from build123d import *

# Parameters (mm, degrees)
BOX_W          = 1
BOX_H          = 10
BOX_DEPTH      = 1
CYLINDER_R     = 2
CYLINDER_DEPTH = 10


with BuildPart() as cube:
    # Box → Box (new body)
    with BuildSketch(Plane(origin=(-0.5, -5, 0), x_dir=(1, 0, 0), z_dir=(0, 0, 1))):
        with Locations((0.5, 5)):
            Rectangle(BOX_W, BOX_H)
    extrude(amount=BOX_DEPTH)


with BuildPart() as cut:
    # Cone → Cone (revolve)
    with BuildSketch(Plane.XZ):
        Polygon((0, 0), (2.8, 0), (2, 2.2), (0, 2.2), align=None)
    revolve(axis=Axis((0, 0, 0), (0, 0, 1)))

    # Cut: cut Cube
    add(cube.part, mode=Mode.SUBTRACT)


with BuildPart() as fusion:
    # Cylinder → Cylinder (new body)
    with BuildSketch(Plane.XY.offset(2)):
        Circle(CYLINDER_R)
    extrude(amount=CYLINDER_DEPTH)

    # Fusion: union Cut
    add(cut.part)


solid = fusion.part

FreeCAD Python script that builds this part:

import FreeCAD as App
import Part
import Sketcher
from FreeCAD import Vector


def add_polygon(sketch, points):
    """Adds a closed chain of lines whose ends are joined by coincident constraints."""
    first, n = sketch.GeometryCount, len(points)
    for a, b in zip(points, points[1:] + points[:1]):
        sketch.addGeometry(Part.LineSegment(App.Vector(*a, 0), App.Vector(*b, 0)), False)
    for i in range(n):
        sketch.addConstraint(Sketcher.Constraint("Coincident", first + i, 2, first + (i + 1) % n, 1))

doc = App.newDocument("Part")
params = doc.addObject("Spreadsheet::Sheet", "Params")
for row, (alias, value) in enumerate([
    ("sketch1_width", "1 mm"),
    ("sketch1_height", "10 mm"),
    ("pad1_length", "1 mm"),
    ("sketch2_width", "2 mm"),
    ("sketch2_width2", "2.8 mm"),
    ("sketch2_height", "2.2 mm"),
    ("revolution_angle", "360 deg"),
    ("sketch3_diameter", "4 mm"),
    ("pad2_length", "10 mm"),
], start=1):
    params.set(f"A{row}", alias)
    params.set(f"B{row}", "=" + value)
    params.setAlias(f"B{row}", alias)

body = doc.addObject("PartDesign::Body", "Body")

# Sketch on XY plane
sketch1 = body.newObject("Sketcher::SketchObject", "Sketch")
sketch1.AttachmentSupport = (doc.getObject("XY_Plane"), [""])
sketch1.MapMode = "FlatFace"
add_polygon(sketch1, [(-0.5, 5), (-0.5, -5), (0.5, -5), (0.5, 5)])  # lines 0-3
sketch1.addConstraint([
    Sketcher.Constraint("Vertical", 0),
    Sketcher.Constraint("Horizontal", 1),
    Sketcher.Constraint("Vertical", 2),
    Sketcher.Constraint("Horizontal", 3),
    Sketcher.Constraint("Symmetric", 0, 2, 2, 2, -1, 1),
    Sketcher.Constraint("DistanceX", 1, 1, 1, 2, 1.0),
    Sketcher.Constraint("DistanceY", 0, 2, 0, 1, 10.0),
])
sketch1.setExpression("Constraints[9]", "Params.sketch1_width")
sketch1.setExpression("Constraints[10]", "Params.sketch1_height")
pad1 = body.newObject("PartDesign::Pad", "Pad")
pad1.Profile = sketch1
pad1.setExpression("Length", "Params.pad1_length")
body2 = doc.addObject("PartDesign::Body", "Body001")

# Sketch on XZ plane
sketch2 = body2.newObject("Sketcher::SketchObject", "Sketch001")
sketch2.AttachmentSupport = (doc.getObject("XZ_Plane001"), [""])
sketch2.MapMode = "FlatFace"
add_polygon(sketch2, [(0, 0), (2.8, 0), (2, 2.2), (0, 2.2)])  # lines 0-3
sketch2.addConstraint([
    Sketcher.Constraint("Horizontal", 0),
    Sketcher.Constraint("Horizontal", 2),
    Sketcher.Constraint("Vertical", 3),
    Sketcher.Constraint("Coincident", 3, 2, -1, 1),
    Sketcher.Constraint("DistanceX", 2, 2, 2, 1, 2.0),
    Sketcher.Constraint("DistanceX", 0, 1, 0, 2, 2.8),
    Sketcher.Constraint("DistanceY", 3, 2, 3, 1, 2.2),
])
sketch2.setExpression("Constraints[8]", "Params.sketch2_width")
sketch2.setExpression("Constraints[9]", "Params.sketch2_width2")
sketch2.setExpression("Constraints[10]", "Params.sketch2_height")
revolution = body2.newObject("PartDesign::Revolution", "Revolution")
revolution.Profile = sketch2
revolution.ReferenceAxis = (sketch2, ["V_Axis"])
revolution.setExpression("Angle", "Params.revolution_angle")
doc.recompute()

boolean = body2.newObject("PartDesign::Boolean", "Boolean")
boolean.Type = "Cut"
boolean.addObjects([body])
body3 = doc.addObject("PartDesign::Body", "Body002")

# Sketch on XY plane
sketch3 = body3.newObject("Sketcher::SketchObject", "Sketch002")
sketch3.AttachmentSupport = (doc.getObject("XY_Plane002"), [""])
sketch3.MapMode = "FlatFace"
sketch3.AttachmentOffset = App.Placement(Vector(0, 0, 2), App.Rotation())
sketch3.addGeometry(Part.Circle(Vector(0, 0, 0), Vector(0, 0, 1), 2), False)
sketch3.addConstraint([
    Sketcher.Constraint("Coincident", 0, 3, -1, 1),
    Sketcher.Constraint("Diameter", 0, 4.0),
])
sketch3.setExpression("Constraints[1]", "Params.sketch3_diameter")
pad2 = body3.newObject("PartDesign::Pad", "Pad001")
pad2.Profile = sketch3
pad2.setExpression("Length", "Params.pad2_length")
doc.recompute()

boolean2 = body3.newObject("PartDesign::Boolean", "Boolean001")
boolean2.Type = "Fuse"
boolean2.addObjects([body2])

doc.recompute()
